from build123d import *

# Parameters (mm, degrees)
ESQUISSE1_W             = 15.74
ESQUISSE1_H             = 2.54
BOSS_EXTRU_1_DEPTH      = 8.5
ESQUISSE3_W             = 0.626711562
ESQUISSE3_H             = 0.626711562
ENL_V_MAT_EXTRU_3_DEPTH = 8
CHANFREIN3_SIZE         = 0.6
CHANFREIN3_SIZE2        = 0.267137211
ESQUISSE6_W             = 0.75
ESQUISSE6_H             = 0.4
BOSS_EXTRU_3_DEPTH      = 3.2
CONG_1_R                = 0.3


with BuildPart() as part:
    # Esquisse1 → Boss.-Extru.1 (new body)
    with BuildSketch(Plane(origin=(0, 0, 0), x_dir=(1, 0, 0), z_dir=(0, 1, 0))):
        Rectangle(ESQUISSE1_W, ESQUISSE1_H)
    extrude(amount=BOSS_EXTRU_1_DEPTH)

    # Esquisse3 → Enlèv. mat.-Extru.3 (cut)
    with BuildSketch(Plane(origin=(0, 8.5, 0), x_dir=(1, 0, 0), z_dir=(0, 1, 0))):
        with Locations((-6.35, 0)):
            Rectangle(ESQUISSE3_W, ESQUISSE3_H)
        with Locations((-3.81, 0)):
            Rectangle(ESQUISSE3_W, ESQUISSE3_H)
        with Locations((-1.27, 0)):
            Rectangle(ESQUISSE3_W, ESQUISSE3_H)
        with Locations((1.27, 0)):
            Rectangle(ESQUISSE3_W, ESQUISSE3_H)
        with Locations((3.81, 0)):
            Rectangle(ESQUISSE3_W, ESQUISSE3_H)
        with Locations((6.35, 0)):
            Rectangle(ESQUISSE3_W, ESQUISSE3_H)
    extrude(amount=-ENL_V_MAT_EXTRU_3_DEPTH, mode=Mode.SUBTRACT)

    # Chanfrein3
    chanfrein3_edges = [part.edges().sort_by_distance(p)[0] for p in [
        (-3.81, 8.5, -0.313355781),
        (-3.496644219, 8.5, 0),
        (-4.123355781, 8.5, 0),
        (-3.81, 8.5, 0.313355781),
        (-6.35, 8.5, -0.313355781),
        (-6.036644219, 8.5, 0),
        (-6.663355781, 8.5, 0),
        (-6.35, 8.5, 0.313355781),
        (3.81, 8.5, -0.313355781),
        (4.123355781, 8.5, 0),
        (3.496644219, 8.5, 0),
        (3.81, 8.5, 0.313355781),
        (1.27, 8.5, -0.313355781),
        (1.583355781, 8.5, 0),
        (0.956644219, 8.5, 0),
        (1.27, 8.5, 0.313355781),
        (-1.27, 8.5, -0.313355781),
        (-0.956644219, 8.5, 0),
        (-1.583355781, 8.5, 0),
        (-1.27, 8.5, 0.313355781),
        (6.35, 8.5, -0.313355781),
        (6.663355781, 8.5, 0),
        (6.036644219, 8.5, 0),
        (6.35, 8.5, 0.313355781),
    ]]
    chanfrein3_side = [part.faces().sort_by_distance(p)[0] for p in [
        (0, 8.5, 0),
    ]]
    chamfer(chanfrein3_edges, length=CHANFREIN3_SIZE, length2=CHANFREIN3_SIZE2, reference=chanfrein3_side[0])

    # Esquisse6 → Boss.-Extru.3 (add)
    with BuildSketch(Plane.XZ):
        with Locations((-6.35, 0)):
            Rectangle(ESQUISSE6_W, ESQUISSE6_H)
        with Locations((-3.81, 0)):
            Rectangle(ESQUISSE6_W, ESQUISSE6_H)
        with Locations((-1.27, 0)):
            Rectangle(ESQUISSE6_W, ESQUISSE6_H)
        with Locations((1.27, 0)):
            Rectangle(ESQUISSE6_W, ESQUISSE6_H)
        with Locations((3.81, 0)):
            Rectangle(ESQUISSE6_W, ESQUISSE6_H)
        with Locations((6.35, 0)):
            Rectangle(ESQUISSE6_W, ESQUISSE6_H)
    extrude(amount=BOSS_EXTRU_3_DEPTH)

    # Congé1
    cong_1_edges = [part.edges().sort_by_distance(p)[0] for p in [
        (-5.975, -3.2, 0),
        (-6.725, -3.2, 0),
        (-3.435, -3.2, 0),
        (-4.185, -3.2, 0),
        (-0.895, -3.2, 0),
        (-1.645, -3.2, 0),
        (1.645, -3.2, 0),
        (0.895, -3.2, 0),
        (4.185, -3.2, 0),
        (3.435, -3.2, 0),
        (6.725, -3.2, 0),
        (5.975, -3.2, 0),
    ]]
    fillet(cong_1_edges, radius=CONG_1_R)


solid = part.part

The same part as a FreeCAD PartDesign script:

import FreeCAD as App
import Part
import Sketcher
from FreeCAD import Vector


def edges_at(feature, points):
    """Names of the edges that pass closest to the given points."""
    edges = feature.Shape.Edges
    near = lambda p: min(range(len(edges)), key=lambda i: edges[i].distToShape(Part.Vertex(*p))[0])
    return sorted({f"Edge{near(p) + 1}" for p in points})

doc = App.newDocument("Part")
body = doc.addObject("PartDesign::Body", "Body")

sketch1 = body.newObject("Sketcher::SketchObject", "Sketch")
sketch1.AttachmentSupport = (doc.getObject("XZ_Plane"), [""])
sketch1.MapMode = "FlatFace"
sketch1.addGeometry([
    Part.LineSegment(Vector(-7.9, -1.3, 0), Vector(-7.9, 1.3, 0)),
    Part.LineSegment(Vector(-7.9, 1.3, 0), Vector(7.9, 1.3, 0)),
    Part.LineSegment(Vector(7.9, 1.3, 0), Vector(7.9, -1.3, 0)),
    Part.LineSegment(Vector(7.9, -1.3, 0), Vector(-7.9, -1.3, 0)),
], False)
sketch1.addConstraint([
    Sketcher.Constraint("Coincident", 0, 2, 1, 1),
    Sketcher.Constraint("Coincident", 1, 2, 2, 1),
    Sketcher.Constraint("Coincident", 2, 2, 3, 1),
    Sketcher.Constraint("Coincident", 3, 2, 0, 1),
    Sketcher.Constraint("Vertical", 0),
    Sketcher.Constraint("Horizontal", 1),
    Sketcher.Constraint("Vertical", 2),
    Sketcher.Constraint("Horizontal", 3),
    Sketcher.Constraint("Symmetric", 0, 2, 2, 2, -1, 1),
    Sketcher.Constraint("DistanceX", 1, 1, 1, 2, 15.74),
    Sketcher.Constraint("DistanceY", 0, 1, 0, 2, 2.54),
])
pad1 = body.newObject("PartDesign::Pad", "Pad")
pad1.Profile = sketch1
pad1.Length = 8.5
pad1.Reversed = True

sketch2 = body.newObject("Sketcher::SketchObject", "Sketch001")
sketch2.AttachmentSupport = (doc.getObject("XZ_Plane"), [""])
sketch2.MapMode = "FlatFace"
sketch2.AttachmentOffset = App.Placement(Vector(0, 0, -8.5), App.Rotation())
sketch2.addGeometry([
    Part.LineSegment(Vector(-6.7, -0.3, 0), Vector(-6.7, 0.3, 0)),
    Part.LineSegment(Vector(-6.7, 0.3, 0), Vector(-6, 0.3, 0)),
    Part.LineSegment(Vector(-6, 0.3, 0), Vector(-6, -0.3, 0)),
    Part.LineSegment(Vector(-6, -0.3, 0), Vector(-6.7, -0.3, 0)),
    Part.LineSegment(Vector(-4.1, -0.3, 0), Vector(-4.1, 0.3, 0)),
    Part.LineSegment(Vector(-4.1, 0.3, 0), Vector(-3.5, 0.3, 0)),
    Part.LineSegment(Vector(-3.5, 0.3, 0), Vector(-3.5, -0.3, 0)),
    Part.LineSegment(Vector(-3.5, -0.3, 0), Vector(-4.1, -0.3, 0)),
    Part.LineSegment(Vector(-1.6, -0.3, 0), Vector(-1.6, 0.3, 0)),
    Part.LineSegment(Vector(-1.6, 0.3, 0), Vector(-1, 0.3, 0)),
    Part.LineSegment(Vector(-1, 0.3, 0), Vector(-1, -0.3, 0)),
    Part.LineSegment(Vector(-1, -0.3, 0), Vector(-1.6, -0.3, 0)),
    Part.LineSegment(Vector(1, -0.3, 0), Vector(1, 0.3, 0)),
    Part.LineSegment(Vector(1, 0.3, 0), Vector(1.6, 0.3, 0)),
    Part.LineSegment(Vector(1.6, 0.3, 0), Vector(1.6, -0.3, 0)),
    Part.LineSegment(Vector(1.6, -0.3, 0), Vector(1, -0.3, 0)),
    Part.LineSegment(Vector(3.5, -0.3, 0), Vector(3.5, 0.3, 0)),
    Part.LineSegment(Vector(3.5, 0.3, 0), Vector(4.1, 0.3, 0)),
    Part.LineSegment(Vector(4.1, 0.3, 0), Vector(4.1, -0.3, 0)),
    Part.LineSegment(Vector(4.1, -0.3, 0), Vector(3.5, -0.3, 0)),
    Part.LineSegment(Vector(6, -0.3, 0), Vector(6, 0.3, 0)),
    Part.LineSegment(Vector(6, 0.3, 0), Vector(6.7, 0.3, 0)),
    Part.LineSegment(Vector(6.7, 0.3, 0), Vector(6.7, -0.3, 0)),
    Part.LineSegment(Vector(6.7, -0.3, 0), Vector(6, -0.3, 0)),
], False)
sketch2.addConstraint([
    Sketcher.Constraint("Coincident", 0, 2, 1, 1),
    Sketcher.Constraint("Coincident", 1, 2, 2, 1),
    Sketcher.Constraint("Coincident", 2, 2, 3, 1),
    Sketcher.Constraint("Coincident", 3, 2, 0, 1),
    Sketcher.Constraint("Coincident", 4, 2, 5, 1),
    Sketcher.Constraint("Coincident", 5, 2, 6, 1),
    Sketcher.Constraint("Coincident", 6, 2, 7, 1),
    Sketcher.Constraint("Coincident", 7, 2, 4, 1),
    Sketcher.Constraint("Coincident", 8, 2, 9, 1),
    Sketcher.Constraint("Coincident", 9, 2, 10, 1),
    Sketcher.Constraint("Coincident", 10, 2, 11, 1),
    Sketcher.Constraint("Coincident", 11, 2, 8, 1),
    Sketcher.Constraint("Coincident", 12, 2, 13, 1),
    Sketcher.Constraint("Coincident", 13, 2, 14, 1),
    Sketcher.Constraint("Coincident", 14, 2, 15, 1),
    Sketcher.Constraint("Coincident", 15, 2, 12, 1),
    Sketcher.Constraint("Coincident", 16, 2, 17, 1),
    Sketcher.Constraint("Coincident", 17, 2, 18, 1),
    Sketcher.Constraint("Coincident", 18, 2, 19, 1),
    Sketcher.Constraint("Coincident", 19, 2, 16, 1),
    Sketcher.Constraint("Coincident", 20, 2, 21, 1),
    Sketcher.Constraint("Coincident", 21, 2, 22, 1),
    Sketcher.Constraint("Coincident", 22, 2, 23, 1),
    Sketcher.Constraint("Coincident", 23, 2, 20, 1),
    Sketcher.Constraint("Vertical", 0),
    Sketcher.Constraint("Horizontal", 1),
    Sketcher.Constraint("Vertical", 2),
    Sketcher.Constraint("Horizontal", 3),
    Sketcher.Constraint("Vertical", 4),
    Sketcher.Constraint("Horizontal", 5),
    Sketcher.Constraint("Vertical", 6),
    Sketcher.Constraint("Horizontal", 7),
    Sketcher.Constraint("Vertical", 8),
    Sketcher.Constraint("Horizontal", 9),
    Sketcher.Constraint("Vertical", 10),
    Sketcher.Constraint("Horizontal", 11),
    Sketcher.Constraint("Vertical", 12),
    Sketcher.Constraint("Horizontal", 13),
    Sketcher.Constraint("Vertical", 14),
    Sketcher.Constraint("Horizontal", 15),
    Sketcher.Constraint("Vertical", 16),
    Sketcher.Constraint("Horizontal", 17),
    Sketcher.Constraint("Vertical", 18),
    Sketcher.Constraint("Horizontal", 19),
    Sketcher.Constraint("Vertical", 20),
    Sketcher.Constraint("Horizontal", 21),
    Sketcher.Constraint("Vertical", 22),
    Sketcher.Constraint("Horizontal", 23),
    Sketcher.Constraint("Symmetric", 10, 2, 12, 2, -1, 1),
    Sketcher.Constraint("Symmetric", 8, 2, 14, 2, -1, 1),
    Sketcher.Constraint("Symmetric", 6, 2, 16, 2, -1, 1),
    Sketcher.Constraint("Symmetric", 4, 2, 18, 2, -1, 1),
    Sketcher.Constraint("Symmetric", 2, 2, 20, 2, -1, 1),
    Sketcher.Constraint("Symmetric", 0, 2, 22, 2, -1, 1),
    Sketcher.Constraint("Horizontal", 1, 2, 4, 2),
    Sketcher.Constraint("Horizontal", 3, 2, 6, 2),
    Sketcher.Constraint("Horizontal", 5, 2, 8, 2),
    Sketcher.Constraint("Horizontal", 7, 2, 10, 2),
    Sketcher.Constraint("Horizontal", 9, 2, 12, 2),
    Sketcher.Constraint("Equal", 3, 5),
    Sketcher.Constraint("Equal", 7, 9),
    Sketcher.Constraint("Equal", 23, 0),
    Sketcher.Constraint("DistanceX", 0, 2, 4, 2, 2.54),
    Sketcher.Constraint("DistanceX", 4, 2, 8, 2, 2.54),
    Sketcher.Constraint("DistanceX", 8, 2, 12, 2, 2.54),
    Sketcher.Constraint("DistanceX", 1, 1, 1, 2, 0.626712),
])
pocket1 = body.newObject("PartDesign::Pocket", "Pocket")
pocket1.Profile = sketch2
pocket1.Length = 8
pocket1.Reversed = True
doc.recompute()

chamfer = body.newObject("PartDesign::Chamfer", "Chamfer")
chamfer.Base = (pocket1, edges_at(pocket1, [
    (-3.81, 8.5, -0.313),
    (-3.497, 8.5, 0),
    (-4.123, 8.5, 0),
    (-3.81, 8.5, 0.313),
    (-6.35, 8.5, -0.313),
    (-6.037, 8.5, 0),
    (-6.663, 8.5, 0),
    (-6.35, 8.5, 0.313),
    (3.81, 8.5, -0.313),
    (4.123, 8.5, 0),
    (3.497, 8.5, 0),
    (3.81, 8.5, 0.313),
    (1.27, 8.5, -0.313),
    (1.583, 8.5, 0),
    (0.957, 8.5, 0),
    (1.27, 8.5, 0.313),
    (-1.27, 8.5, -0.313),
    (-0.957, 8.5, 0),
    (-1.583, 8.5, 0),
    (-1.27, 8.5, 0.313),
    (6.35, 8.5, -0.313),
    (6.663, 8.5, 0),
    (6.037, 8.5, 0),
    (6.35, 8.5, 0.313),
]))
chamfer.ChamferType = "Two distances"
chamfer.Size = 0.6
chamfer.Size2 = 0.267137

sketch3 = body.newObject("Sketcher::SketchObject", "Sketch002")
sketch3.AttachmentSupport = (doc.getObject("XZ_Plane"), [""])
sketch3.MapMode = "FlatFace"
sketch3.addGeometry([
    Part.LineSegment(Vector(-6.72, 0.2, 0), Vector(-6.72, -0.2, 0)),
    Part.LineSegment(Vector(-6.72, -0.2, 0), Vector(-5.97, -0.2, 0)),
    Part.LineSegment(Vector(-5.97, -0.2, 0), Vector(-5.97, 0.2, 0)),
    Part.LineSegment(Vector(-5.97, 0.2, 0), Vector(-6.72, 0.2, 0)),
    Part.LineSegment(Vector(-4.18, 0.2, 0), Vector(-4.18, -0.2, 0)),
    Part.LineSegment(Vector(-4.18, -0.2, 0), Vector(-3.44, -0.2, 0)),
    Part.LineSegment(Vector(-3.44, -0.2, 0), Vector(-3.44, 0.2, 0)),
    Part.LineSegment(Vector(-3.44, 0.2, 0), Vector(-4.18, 0.2, 0)),
    Part.LineSegment(Vector(-1.65, 0.2, 0), Vector(-1.65, -0.2, 0)),
    Part.LineSegment(Vector(-1.65, -0.2, 0), Vector(-0.9, -0.2, 0)),
    Part.LineSegment(Vector(-0.9, -0.2, 0), Vector(-0.9, 0.2, 0)),
    Part.LineSegment(Vector(-0.9, 0.2, 0), Vector(-1.65, 0.2, 0)),
    Part.LineSegment(Vector(0.9, 0.2, 0), Vector(0.9, -0.2, 0)),
    Part.LineSegment(Vector(0.9, -0.2, 0), Vector(1.65, -0.2, 0)),
    Part.LineSegment(Vector(1.65, -0.2, 0), Vector(1.65, 0.2, 0)),
    Part.LineSegment(Vector(1.65, 0.2, 0), Vector(0.9, 0.2, 0)),
    Part.LineSegment(Vector(3.44, 0.2, 0), Vector(3.44, -0.2, 0)),
    Part.LineSegment(Vector(3.44, -0.2, 0), Vector(4.18, -0.2, 0)),
    Part.LineSegment(Vector(4.18, -0.2, 0), Vector(4.18, 0.2, 0)),
    Part.LineSegment(Vector(4.18, 0.2, 0), Vector(3.44, 0.2, 0)),
    Part.LineSegment(Vector(5.97, 0.2, 0), Vector(5.97, -0.2, 0)),
    Part.LineSegment(Vector(5.97, -0.2, 0), Vector(6.72, -0.2, 0)),
    Part.LineSegment(Vector(6.72, -0.2, 0), Vector(6.72, 0.2, 0)),
    Part.LineSegment(Vector(6.72, 0.2, 0), Vector(5.97, 0.2, 0)),
], False)
sketch3.addConstraint([
    Sketcher.Constraint("Coincident", 0, 2, 1, 1),
    Sketcher.Constraint("Coincident", 1, 2, 2, 1),
    Sketcher.Constraint("Coincident", 2, 2, 3, 1),
    Sketcher.Constraint("Coincident", 3, 2, 0, 1),
    Sketcher.Constraint("Coincident", 4, 2, 5, 1),
    Sketcher.Constraint("Coincident", 5, 2, 6, 1),
    Sketcher.Constraint("Coincident", 6, 2, 7, 1),
    Sketcher.Constraint("Coincident", 7, 2, 4, 1),
    Sketcher.Constraint("Coincident", 8, 2, 9, 1),
    Sketcher.Constraint("Coincident", 9, 2, 10, 1),
    Sketcher.Constraint("Coincident", 10, 2, 11, 1),
    Sketcher.Constraint("Coincident", 11, 2, 8, 1),
    Sketcher.Constraint("Coincident", 12, 2, 13, 1),
    Sketcher.Constraint("Coincident", 13, 2, 14, 1),
    Sketcher.Constraint("Coincident", 14, 2, 15, 1),
    Sketcher.Constraint("Coincident", 15, 2, 12, 1),
    Sketcher.Constraint("Coincident", 16, 2, 17, 1),
    Sketcher.Constraint("Coincident", 17, 2, 18, 1),
    Sketcher.Constraint("Coincident", 18, 2, 19, 1),
    Sketcher.Constraint("Coincident", 19, 2, 16, 1),
    Sketcher.Constraint("Coincident", 20, 2, 21, 1),
    Sketcher.Constraint("Coincident", 21, 2, 22, 1),
    Sketcher.Constraint("Coincident", 22, 2, 23, 1),
    Sketcher.Constraint("Coincident", 23, 2, 20, 1),
    Sketcher.Constraint("Vertical", 0),
    Sketcher.Constraint("Horizontal", 1),
    Sketcher.Constraint("Vertical", 2),
    Sketcher.Constraint("Horizontal", 3),
    Sketcher.Constraint("Vertical", 4),
    Sketcher.Constraint("Horizontal", 5),
    Sketcher.Constraint("Vertical", 6),
    Sketcher.Constraint("Horizontal", 7),
    Sketcher.Constraint("Vertical", 8),
    Sketcher.Constraint("Horizontal", 9),
    Sketcher.Constraint("Vertical", 10),
    Sketcher.Constraint("Horizontal", 11),
    Sketcher.Constraint("Vertical", 12),
    Sketcher.Constraint("Horizontal", 13),
    Sketcher.Constraint("Vertical", 14),
    Sketcher.Constraint("Horizontal", 15),
    Sketcher.Constraint("Vertical", 16),
    Sketcher.Constraint("Horizontal", 17),
    Sketcher.Constraint("Vertical", 18),
    Sketcher.Constraint("Horizontal", 19),
    Sketcher.Constraint("Vertical", 20),
    Sketcher.Constraint("Horizontal", 21),
    Sketcher.Constraint("Vertical", 22),
    Sketcher.Constraint("Horizontal", 23),
    Sketcher.Constraint("Symmetric", 10, 2, 12, 2, -1, 1),
    Sketcher.Constraint("Symmetric", 8, 2, 14, 2, -1, 1),
    Sketcher.Constraint("Symmetric", 6, 2, 16, 2, -1, 1),
    Sketcher.Constraint("Symmetric", 4, 2, 18, 2, -1, 1),
    Sketcher.Constraint("Symmetric", 2, 2, 20, 2, -1, 1),
    Sketcher.Constraint("Symmetric", 0, 2, 22, 2, -1, 1),
    Sketcher.Constraint("Horizontal", 1, 2, 4, 2),
    Sketcher.Constraint("Horizontal", 3, 2, 6, 2),
    Sketcher.Constraint("Horizontal", 5, 2, 8, 2),
    Sketcher.Constraint("Horizontal", 7, 2, 10, 2),
    Sketcher.Constraint("Horizontal", 9, 2, 12, 2),
    Sketcher.Constraint("Equal", 3, 5),
    Sketcher.Constraint("Equal", 7, 9),
    Sketcher.Constraint("DistanceY", 0, 2, 0, 1, 0.4),
    Sketcher.Constraint("DistanceX", 1, 1, 1, 2, 0.75),
    Sketcher.Constraint("DistanceX", 1, 2, 4, 2, 1.79),
    Sketcher.Constraint("DistanceX", 5, 2, 8, 2, 1.79),
    Sketcher.Constraint("DistanceX", 9, 2, 12, 2, 1.79),
])
pad2 = body.newObject("PartDesign::Pad", "Pad001")
pad2.Profile = sketch3
pad2.Length = 3.2
doc.recompute()

fillet = body.newObject("PartDesign::Fillet", "Fillet")
fillet.Base = (pad2, edges_at(pad2, [
    (-5.975, -3.2, 0),
    (-6.725, -3.2, 0),
    (-3.435, -3.2, 0),
    (-4.185, -3.2, 0),
    (-0.895, -3.2, 0),
    (-1.645, -3.2, 0),
    (1.645, -3.2, 0),
    (0.895, -3.2, 0),
    (4.185, -3.2, 0),
    (3.435, -3.2, 0),
    (6.725, -3.2, 0),
    (5.975, -3.2, 0),
]))
fillet.Radius = 0.3

doc.recompute()
